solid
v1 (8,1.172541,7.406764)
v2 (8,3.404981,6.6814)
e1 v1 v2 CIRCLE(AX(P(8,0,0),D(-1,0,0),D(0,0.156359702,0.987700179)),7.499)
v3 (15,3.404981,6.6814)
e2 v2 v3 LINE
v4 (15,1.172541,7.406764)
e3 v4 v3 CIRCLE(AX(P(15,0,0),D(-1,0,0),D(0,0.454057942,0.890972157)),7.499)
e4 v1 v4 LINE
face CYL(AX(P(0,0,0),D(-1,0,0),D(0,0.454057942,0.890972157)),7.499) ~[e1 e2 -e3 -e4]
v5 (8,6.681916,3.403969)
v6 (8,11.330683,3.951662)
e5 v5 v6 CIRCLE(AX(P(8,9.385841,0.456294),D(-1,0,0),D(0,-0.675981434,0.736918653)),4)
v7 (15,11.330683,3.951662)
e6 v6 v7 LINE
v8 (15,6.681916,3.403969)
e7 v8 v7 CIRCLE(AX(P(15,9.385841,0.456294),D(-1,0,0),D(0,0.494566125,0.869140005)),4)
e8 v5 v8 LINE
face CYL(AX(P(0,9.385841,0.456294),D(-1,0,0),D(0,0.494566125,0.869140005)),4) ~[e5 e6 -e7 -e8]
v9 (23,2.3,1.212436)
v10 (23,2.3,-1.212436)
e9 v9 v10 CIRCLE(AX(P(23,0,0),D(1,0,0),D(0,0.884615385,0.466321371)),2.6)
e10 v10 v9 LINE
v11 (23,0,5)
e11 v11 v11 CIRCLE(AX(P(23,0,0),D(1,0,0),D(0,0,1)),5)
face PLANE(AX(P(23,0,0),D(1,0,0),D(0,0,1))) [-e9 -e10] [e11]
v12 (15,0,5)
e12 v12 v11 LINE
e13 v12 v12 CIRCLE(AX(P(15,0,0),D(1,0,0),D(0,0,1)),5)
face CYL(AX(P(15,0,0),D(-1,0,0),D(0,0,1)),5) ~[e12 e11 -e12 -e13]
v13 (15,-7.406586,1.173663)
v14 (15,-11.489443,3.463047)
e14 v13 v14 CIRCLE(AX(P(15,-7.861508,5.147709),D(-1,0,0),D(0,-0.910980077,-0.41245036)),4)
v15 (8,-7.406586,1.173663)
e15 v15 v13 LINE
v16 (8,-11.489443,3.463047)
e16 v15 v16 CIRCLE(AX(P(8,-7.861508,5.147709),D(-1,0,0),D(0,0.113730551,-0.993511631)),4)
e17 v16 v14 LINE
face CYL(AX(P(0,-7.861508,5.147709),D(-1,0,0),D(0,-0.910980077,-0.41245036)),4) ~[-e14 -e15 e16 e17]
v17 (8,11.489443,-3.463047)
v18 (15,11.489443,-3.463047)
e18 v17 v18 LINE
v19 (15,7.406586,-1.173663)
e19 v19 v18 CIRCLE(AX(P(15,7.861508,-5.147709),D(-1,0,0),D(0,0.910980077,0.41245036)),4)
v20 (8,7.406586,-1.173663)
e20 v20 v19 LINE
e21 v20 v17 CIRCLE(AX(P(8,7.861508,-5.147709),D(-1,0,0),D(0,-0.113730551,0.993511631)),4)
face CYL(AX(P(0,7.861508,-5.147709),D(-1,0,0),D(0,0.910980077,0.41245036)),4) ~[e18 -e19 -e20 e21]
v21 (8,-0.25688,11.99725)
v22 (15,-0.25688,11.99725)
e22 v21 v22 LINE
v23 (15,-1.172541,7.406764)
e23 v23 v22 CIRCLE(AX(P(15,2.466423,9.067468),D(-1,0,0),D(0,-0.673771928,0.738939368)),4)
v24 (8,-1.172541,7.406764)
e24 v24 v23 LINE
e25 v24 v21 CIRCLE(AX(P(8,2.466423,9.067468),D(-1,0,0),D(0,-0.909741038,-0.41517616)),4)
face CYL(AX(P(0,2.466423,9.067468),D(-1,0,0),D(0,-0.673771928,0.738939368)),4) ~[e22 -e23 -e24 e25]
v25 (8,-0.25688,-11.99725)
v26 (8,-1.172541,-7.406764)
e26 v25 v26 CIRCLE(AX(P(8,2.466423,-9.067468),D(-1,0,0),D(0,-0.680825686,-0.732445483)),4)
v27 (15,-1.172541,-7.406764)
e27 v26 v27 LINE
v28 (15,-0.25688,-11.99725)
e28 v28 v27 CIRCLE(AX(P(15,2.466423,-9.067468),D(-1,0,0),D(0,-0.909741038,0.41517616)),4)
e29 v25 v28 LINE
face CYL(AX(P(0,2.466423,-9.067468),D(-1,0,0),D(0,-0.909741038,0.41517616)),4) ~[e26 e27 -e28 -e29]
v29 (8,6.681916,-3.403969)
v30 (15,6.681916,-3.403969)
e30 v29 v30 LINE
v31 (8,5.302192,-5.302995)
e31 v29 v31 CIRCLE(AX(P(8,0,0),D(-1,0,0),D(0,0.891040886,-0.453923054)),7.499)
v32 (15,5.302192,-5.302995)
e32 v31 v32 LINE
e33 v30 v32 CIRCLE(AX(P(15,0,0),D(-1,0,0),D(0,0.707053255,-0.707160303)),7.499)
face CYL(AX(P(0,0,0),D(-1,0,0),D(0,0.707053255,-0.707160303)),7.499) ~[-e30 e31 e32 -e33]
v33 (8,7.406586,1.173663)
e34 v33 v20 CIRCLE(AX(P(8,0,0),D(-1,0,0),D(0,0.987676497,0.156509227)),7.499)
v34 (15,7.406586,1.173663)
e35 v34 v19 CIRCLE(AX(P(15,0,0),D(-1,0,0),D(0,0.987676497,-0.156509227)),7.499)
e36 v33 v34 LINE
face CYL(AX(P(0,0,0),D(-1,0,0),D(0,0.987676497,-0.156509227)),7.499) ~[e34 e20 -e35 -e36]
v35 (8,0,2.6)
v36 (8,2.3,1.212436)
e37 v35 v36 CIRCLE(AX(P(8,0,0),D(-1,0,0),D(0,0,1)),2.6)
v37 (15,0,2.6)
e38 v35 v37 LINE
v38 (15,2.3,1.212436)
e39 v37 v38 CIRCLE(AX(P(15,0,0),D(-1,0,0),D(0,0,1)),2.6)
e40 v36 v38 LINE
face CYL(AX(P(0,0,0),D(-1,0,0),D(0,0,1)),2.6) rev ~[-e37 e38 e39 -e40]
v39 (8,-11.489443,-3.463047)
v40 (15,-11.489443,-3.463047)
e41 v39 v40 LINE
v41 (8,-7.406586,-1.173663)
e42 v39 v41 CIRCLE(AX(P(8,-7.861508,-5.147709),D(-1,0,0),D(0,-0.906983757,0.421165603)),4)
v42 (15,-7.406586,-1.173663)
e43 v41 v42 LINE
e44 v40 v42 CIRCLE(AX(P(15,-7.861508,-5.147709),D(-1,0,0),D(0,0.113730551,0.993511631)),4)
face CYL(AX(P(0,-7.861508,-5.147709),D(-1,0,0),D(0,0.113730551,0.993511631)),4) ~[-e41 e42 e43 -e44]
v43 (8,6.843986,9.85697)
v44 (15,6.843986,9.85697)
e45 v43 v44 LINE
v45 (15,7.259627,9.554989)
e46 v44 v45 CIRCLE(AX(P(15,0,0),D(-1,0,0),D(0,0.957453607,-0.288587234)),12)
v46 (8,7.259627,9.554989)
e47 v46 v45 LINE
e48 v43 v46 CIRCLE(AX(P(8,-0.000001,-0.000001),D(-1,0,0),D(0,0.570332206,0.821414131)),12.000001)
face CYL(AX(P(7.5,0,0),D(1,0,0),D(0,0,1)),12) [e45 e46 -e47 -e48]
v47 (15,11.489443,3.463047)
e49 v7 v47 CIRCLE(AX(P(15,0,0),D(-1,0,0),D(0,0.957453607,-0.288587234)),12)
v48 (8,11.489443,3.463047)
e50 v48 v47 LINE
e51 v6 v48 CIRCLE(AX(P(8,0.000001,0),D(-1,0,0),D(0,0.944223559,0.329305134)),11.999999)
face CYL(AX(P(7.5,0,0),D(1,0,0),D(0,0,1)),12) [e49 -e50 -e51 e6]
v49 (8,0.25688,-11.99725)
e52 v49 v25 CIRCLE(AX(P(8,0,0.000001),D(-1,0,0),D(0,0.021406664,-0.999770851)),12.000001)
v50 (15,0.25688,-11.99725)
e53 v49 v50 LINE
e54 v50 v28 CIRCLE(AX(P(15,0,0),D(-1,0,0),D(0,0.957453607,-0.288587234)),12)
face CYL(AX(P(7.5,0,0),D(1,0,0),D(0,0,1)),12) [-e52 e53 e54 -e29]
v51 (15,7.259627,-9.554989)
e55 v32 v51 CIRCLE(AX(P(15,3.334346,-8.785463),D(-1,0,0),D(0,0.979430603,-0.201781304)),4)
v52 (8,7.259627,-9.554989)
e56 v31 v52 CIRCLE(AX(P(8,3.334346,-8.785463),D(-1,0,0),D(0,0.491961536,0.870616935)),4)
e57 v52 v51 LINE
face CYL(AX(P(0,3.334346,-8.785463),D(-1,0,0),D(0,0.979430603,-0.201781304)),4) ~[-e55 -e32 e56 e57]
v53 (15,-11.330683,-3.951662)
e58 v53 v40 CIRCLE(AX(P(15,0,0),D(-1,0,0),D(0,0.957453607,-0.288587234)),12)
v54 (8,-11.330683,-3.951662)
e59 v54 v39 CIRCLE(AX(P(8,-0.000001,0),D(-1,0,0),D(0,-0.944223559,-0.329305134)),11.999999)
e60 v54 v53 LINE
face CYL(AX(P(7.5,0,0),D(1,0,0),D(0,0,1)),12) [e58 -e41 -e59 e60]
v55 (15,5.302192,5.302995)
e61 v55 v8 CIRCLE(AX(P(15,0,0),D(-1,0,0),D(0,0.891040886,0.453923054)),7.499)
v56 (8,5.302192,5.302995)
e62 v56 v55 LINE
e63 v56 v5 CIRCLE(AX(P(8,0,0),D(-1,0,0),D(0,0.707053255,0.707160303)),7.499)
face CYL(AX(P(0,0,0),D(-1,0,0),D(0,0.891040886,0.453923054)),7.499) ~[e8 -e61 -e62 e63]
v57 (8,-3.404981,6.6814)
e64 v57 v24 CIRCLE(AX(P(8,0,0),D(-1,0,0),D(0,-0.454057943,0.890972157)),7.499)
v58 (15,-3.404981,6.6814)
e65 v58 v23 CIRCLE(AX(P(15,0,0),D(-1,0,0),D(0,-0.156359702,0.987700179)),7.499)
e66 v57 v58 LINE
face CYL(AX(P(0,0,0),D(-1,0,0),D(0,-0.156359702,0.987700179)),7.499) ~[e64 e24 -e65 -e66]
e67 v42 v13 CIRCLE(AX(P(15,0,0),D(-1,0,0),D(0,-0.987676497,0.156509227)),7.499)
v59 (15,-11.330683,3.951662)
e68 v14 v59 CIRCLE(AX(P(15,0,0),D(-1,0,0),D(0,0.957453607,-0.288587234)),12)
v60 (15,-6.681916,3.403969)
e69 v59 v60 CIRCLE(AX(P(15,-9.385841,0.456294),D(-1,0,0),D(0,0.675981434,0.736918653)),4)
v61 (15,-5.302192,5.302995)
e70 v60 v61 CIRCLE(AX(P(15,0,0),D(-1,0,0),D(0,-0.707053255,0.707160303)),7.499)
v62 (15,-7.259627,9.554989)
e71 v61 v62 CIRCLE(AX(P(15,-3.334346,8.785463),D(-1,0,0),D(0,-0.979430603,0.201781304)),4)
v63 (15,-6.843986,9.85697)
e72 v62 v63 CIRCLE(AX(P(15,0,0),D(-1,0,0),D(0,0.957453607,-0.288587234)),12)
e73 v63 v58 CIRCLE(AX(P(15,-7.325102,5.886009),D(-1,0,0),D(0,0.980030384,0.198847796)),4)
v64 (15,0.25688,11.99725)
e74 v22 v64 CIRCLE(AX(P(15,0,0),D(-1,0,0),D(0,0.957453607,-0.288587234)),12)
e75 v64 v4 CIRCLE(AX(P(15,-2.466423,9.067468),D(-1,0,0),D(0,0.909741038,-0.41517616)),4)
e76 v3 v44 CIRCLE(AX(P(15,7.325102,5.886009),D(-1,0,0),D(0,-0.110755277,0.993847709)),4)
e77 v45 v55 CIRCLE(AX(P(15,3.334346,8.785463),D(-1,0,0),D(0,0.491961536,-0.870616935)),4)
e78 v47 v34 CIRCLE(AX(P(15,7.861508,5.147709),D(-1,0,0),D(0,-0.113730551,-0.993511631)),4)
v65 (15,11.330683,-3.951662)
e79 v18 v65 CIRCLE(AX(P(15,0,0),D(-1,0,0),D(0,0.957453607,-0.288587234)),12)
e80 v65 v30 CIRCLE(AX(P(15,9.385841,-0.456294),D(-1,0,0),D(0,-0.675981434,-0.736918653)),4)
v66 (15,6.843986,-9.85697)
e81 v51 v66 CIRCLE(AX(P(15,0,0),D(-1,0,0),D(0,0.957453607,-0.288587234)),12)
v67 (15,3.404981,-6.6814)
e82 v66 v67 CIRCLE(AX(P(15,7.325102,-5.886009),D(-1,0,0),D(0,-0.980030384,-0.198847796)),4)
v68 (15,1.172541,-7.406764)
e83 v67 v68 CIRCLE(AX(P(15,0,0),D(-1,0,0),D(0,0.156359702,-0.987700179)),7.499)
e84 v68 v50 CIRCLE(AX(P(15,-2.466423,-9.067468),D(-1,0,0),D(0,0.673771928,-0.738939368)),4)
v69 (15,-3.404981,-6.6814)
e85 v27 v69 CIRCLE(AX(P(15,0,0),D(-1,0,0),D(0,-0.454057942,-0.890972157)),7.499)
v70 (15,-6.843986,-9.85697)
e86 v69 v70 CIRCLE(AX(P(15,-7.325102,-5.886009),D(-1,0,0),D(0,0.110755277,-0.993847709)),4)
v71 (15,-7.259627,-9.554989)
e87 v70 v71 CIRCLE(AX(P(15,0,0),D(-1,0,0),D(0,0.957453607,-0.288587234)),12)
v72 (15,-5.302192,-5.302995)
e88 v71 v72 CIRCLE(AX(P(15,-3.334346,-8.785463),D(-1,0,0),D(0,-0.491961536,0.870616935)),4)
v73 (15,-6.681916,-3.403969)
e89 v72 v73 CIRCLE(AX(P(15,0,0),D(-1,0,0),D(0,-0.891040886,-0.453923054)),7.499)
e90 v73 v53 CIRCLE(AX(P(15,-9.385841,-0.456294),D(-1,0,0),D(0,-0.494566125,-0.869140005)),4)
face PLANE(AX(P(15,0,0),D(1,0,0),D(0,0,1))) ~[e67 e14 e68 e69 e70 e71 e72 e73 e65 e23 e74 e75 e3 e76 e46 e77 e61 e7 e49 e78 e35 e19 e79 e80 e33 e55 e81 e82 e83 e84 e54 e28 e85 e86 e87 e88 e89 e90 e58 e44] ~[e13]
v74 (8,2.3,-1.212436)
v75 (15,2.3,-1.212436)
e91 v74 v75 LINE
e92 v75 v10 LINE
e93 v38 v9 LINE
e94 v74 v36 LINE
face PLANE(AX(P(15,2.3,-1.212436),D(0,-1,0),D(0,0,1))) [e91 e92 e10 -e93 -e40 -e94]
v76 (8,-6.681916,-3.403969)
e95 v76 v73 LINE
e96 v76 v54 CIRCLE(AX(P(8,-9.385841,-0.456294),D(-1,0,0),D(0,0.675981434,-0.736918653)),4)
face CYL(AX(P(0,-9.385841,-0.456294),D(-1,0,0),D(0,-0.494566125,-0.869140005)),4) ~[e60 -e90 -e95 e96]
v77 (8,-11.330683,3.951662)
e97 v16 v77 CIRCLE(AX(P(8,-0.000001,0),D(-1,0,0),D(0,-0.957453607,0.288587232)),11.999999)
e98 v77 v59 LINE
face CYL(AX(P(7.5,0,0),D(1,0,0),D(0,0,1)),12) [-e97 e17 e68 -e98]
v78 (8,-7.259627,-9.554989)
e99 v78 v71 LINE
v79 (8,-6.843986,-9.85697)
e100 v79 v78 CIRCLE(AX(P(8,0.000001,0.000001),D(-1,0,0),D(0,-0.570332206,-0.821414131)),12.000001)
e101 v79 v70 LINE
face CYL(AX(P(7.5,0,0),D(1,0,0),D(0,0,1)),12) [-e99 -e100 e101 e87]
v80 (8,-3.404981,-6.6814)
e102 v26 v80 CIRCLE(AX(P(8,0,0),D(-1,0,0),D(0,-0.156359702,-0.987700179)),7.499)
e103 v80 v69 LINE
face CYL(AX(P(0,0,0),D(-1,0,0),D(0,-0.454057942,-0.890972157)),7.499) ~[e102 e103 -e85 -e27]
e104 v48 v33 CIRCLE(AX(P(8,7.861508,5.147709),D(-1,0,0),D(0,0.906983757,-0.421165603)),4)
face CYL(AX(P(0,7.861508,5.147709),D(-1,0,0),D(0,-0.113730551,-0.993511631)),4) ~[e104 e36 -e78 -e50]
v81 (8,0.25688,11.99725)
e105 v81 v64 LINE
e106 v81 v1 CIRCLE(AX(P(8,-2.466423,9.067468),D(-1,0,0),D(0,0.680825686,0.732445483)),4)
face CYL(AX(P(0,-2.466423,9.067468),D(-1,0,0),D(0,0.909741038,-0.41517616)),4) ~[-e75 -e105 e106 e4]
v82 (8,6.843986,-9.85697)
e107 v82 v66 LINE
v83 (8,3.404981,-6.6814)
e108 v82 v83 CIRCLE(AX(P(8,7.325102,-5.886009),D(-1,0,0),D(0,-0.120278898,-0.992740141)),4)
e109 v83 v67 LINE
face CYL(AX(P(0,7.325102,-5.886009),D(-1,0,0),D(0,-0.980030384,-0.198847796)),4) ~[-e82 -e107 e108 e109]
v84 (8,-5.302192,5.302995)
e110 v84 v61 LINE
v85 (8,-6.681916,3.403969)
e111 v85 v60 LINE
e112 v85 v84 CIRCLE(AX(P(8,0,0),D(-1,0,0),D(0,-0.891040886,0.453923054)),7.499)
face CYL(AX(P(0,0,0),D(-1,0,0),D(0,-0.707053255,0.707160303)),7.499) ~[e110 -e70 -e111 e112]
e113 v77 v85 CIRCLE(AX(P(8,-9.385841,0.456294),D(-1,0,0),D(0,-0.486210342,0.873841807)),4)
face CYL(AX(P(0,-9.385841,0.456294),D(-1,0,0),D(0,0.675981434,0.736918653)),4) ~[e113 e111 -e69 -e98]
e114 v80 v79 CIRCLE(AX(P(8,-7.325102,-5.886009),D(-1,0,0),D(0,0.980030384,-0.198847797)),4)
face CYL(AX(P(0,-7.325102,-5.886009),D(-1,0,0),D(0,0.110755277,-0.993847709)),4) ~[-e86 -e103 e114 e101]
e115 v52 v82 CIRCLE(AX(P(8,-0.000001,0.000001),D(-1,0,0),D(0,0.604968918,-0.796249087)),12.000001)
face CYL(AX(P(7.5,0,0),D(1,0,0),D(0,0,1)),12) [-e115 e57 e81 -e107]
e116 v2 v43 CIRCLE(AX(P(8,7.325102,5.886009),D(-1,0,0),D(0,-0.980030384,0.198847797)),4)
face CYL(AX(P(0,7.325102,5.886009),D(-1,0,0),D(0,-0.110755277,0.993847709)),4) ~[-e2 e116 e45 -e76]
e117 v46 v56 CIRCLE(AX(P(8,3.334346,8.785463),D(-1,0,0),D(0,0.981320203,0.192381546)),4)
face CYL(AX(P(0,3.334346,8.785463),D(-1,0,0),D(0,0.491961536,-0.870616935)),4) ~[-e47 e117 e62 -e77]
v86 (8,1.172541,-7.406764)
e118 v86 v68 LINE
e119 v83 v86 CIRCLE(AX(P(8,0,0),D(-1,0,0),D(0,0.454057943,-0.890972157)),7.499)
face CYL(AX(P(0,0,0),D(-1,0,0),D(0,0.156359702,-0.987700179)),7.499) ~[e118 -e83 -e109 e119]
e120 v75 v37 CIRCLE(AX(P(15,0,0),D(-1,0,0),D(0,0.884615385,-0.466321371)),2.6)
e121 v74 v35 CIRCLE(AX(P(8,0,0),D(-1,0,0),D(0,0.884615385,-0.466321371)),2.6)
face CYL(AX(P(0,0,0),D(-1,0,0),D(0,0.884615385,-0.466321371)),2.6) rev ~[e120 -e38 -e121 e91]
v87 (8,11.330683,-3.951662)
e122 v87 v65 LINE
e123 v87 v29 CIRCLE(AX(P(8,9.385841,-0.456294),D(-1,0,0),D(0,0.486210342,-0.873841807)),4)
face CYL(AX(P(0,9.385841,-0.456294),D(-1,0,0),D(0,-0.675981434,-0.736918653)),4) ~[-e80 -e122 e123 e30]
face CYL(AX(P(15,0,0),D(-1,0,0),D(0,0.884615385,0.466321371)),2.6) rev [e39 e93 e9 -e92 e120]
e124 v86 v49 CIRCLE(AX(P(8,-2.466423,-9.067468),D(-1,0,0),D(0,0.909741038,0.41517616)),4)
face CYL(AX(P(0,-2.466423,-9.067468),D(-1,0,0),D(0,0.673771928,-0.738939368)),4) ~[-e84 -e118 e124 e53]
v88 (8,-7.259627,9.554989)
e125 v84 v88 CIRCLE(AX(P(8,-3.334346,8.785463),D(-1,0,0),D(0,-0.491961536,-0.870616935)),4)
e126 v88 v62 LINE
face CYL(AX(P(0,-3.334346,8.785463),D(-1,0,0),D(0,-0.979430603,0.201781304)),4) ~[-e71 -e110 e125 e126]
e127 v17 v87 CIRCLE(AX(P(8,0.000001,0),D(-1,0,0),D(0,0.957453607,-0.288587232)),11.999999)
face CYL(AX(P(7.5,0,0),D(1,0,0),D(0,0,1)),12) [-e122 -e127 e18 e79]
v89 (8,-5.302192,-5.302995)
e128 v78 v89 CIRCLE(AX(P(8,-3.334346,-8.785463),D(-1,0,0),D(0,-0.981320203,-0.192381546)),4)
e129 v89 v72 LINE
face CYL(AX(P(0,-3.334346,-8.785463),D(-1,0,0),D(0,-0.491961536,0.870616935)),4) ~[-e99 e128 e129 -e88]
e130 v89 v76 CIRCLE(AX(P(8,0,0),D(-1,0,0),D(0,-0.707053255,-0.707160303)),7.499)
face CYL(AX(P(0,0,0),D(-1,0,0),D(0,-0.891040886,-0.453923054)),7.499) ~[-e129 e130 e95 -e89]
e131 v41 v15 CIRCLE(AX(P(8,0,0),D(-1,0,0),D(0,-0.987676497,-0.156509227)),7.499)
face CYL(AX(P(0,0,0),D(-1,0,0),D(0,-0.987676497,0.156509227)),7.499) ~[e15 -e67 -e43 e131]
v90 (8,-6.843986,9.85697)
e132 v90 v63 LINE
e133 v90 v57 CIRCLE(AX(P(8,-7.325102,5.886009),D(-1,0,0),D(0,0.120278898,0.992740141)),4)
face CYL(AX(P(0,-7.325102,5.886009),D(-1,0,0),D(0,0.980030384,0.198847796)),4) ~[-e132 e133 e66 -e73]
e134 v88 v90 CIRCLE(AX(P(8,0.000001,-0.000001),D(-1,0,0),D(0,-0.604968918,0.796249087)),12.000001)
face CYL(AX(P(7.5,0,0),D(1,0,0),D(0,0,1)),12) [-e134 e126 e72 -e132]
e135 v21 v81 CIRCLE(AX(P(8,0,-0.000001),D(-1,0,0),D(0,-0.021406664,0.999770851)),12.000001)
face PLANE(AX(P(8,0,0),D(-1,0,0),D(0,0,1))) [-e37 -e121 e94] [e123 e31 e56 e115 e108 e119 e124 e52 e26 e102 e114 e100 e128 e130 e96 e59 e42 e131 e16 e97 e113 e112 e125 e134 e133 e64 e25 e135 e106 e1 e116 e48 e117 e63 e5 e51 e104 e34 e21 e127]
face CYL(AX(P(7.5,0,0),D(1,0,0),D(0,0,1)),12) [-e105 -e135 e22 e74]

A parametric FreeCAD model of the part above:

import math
import FreeCAD as App
import Part
import Sketcher
from FreeCAD import Vector
Q = App.Units.Quantity


def add_polygon(sketch, points):
    """Adds a closed chain of lines whose ends are joined by coincident constraints."""
    first, n = sketch.GeometryCount, len(points)
    for a, b in zip(points, points[1:] + points[:1]):
        sketch.addGeometry(Part.LineSegment(App.Vector(*a, 0), App.Vector(*b, 0)), False)
    for i in range(n):
        sketch.addConstraint(Sketcher.Constraint("Coincident", first + i, 2, first + (i + 1) % n, 1))

doc = App.newDocument("Part")
body = doc.addObject("PartDesign::Body", "Body")

sketch1 = body.newObject("Sketcher::SketchObject", "Sketch")
sketch1.AttachmentSupport = (doc.getObject("XZ_Plane"), [""])
sketch1.MapMode = "FlatFace"
add_polygon(sketch1, [(0, -12), (0, 0), (15, 0), (15, -12)])
sketch1.addConstraint(Sketcher.Constraint("Vertical", 0))
sketch1.addConstraint(Sketcher.Constraint("Horizontal", 1))
sketch1.addConstraint(Sketcher.Constraint("Vertical", 2))
sketch1.addConstraint(Sketcher.Constraint("Horizontal", 3))
sketch1.addConstraint(Sketcher.Constraint("Coincident", 0, 2, -1, 1))
sketch1.addConstraint(Sketcher.Constraint("DistanceX", 1, 1, 1, 2, Q("15 mm")))
sketch1.addConstraint(Sketcher.Constraint("DistanceY", 0, 1, 0, 2, Q("12 mm")))
revolution = body.newObject("PartDesign::Revolution", "Revolution")
revolution.Profile = sketch1
revolution.ReferenceAxis = (sketch1, ["H_Axis"])
revolution.Angle = 360

sketch2 = body.newObject("Sketcher::SketchObject", "Sketch001")
sketch2.AttachmentSupport = (doc.getObject("YZ_Plane"), [""])
sketch2.MapMode = "FlatFace"
sketch2.addGeometry(Part.ArcOfCircle(Part.Circle(Vector(0, 0, 0), Vector(0, 0, 1), 7.5), math.radians(-9), math.radians(9)), False)
sketch2.addGeometry(Part.ArcOfCircle(Part.Circle(Vector(7.9, -5.1, 0), Vector(0, 0, 1), 4), math.radians(24), math.radians(97)), False)
sketch2.addGeometry(Part.ArcOfCircle(Part.Circle(Vector(0, 0, 0), Vector(0, 0, 1), 12), math.radians(-17), math.radians(17)), False)
sketch2.addGeometry(Part.ArcOfCircle(Part.Circle(Vector(7.9, 5.1, 0), Vector(0, 0, 1), 4), math.radians(-97), math.radians(-24)), False)
sketch2.addConstraint(Sketcher.Constraint("Coincident", 0, 1, 1, 2))
sketch2.addConstraint(Sketcher.Constraint("Coincident", 1, 1, 2, 1))
sketch2.addConstraint(Sketcher.Constraint("Coincident", 2, 2, 3, 2))
sketch2.addConstraint(Sketcher.Constraint("Coincident", 3, 1, 0, 2))
sketch2.addConstraint(Sketcher.Constraint("Coincident", 0, 3, -1, 1))
sketch2.addConstraint(Sketcher.Constraint("Coincident", 2, 3, -1, 1))
sketch2.addConstraint(Sketcher.Constraint("Equal", 1, 3))
sketch2.addConstraint(Sketcher.Constraint("Symmetric", 1, 3, 3, 3, -1))
sketch2.addConstraint(Sketcher.Constraint("Radius", 1, Q("4 mm")))
sketch2.addConstraint(Sketcher.Constraint("Radius", 0, Q("7.499 mm")))
sketch2.addConstraint(Sketcher.Constraint("Radius", 2, Q("12.0254 mm")))
sketch2.addConstraint(Sketcher.Constraint("DistanceY", 1, 3, 1, 1, Q("1.649801 mm")))
sketch2.addConstraint(Sketcher.Constraint("DistanceX", -1, 1, 1, 3, Q("7.861508 mm")))
pocket1 = body.newObject("PartDesign::Pocket", "Pocket")
pocket1.Profile = sketch2
pocket1.Type = "ThroughAll"
pocket1.Reversed = True
doc.recompute()

polarpattern = body.newObject("PartDesign::PolarPattern", "PolarPattern")
polarpattern.Originals = [pocket1]
polarpattern.Axis = (doc.getObject("X_Axis"), [""])
polarpattern.Angle = 360
polarpattern.Occurrences = 10
body.Tip = polarpattern

sketch3 = body.newObject("Sketcher::SketchObject", "Sketch002")
sketch3.AttachmentSupport = (doc.getObject("YZ_Plane"), [""])
sketch3.MapMode = "FlatFace"
sketch3.addGeometry(Part.Circle(Vector(0, 0, 0), Vector(0, 0, 1), 0.45), False)
sketch3.addConstraint(Sketcher.Constraint("Coincident", 0, 3, -1, 1))
sketch3.addConstraint(Sketcher.Constraint("Diameter", 0, Q("0.9 mm")))
pocket2 = body.newObject("PartDesign::Pocket", "Pocket001")
pocket2.Profile = sketch3
pocket2.Length = 100.000102
pocket2.Midplane = True

sketch4 = body.newObject("Sketcher::SketchObject", "Sketch003")
sketch4.AttachmentSupport = (doc.getObject("YZ_Plane"), [""])
sketch4.MapMode = "FlatFace"
sketch4.addGeometry(Part.LineSegment(Vector(2.3, 1.21, 0), Vector(2.3, -1.21, 0)), False)
sketch4.addGeometry(Part.ArcOfCircle(Part.Circle(Vector(0, 0, 0), Vector(0, 0, 1), 2.6), math.radians(90), math.radians(332)), False)
sketch4.addGeometry(Part.ArcOfCircle(Part.Circle(Vector(0, 0, 0), Vector(0, 0, 1), 2.6), math.radians(28), math.radians(90)), False)
sketch4.addGeometry(Part.Circle(Vector(0, 0, 0), Vector(0, 0, 1), 0.45), False)
sketch4.addConstraint(Sketcher.Constraint("Coincident", 0, 2, 1, 2))
sketch4.addConstraint(Sketcher.Constraint("Tangent", 1, 1, 2, 2))
sketch4.addConstraint(Sketcher.Constraint("Coincident", 2, 1, 0, 1))
sketch4.addConstraint(Sketcher.Constraint("Vertical", 0))
sketch4.addConstraint(Sketcher.Constraint("Coincident", 1, 3, -1, 1))
sketch4.addConstraint(Sketcher.Constraint("Coincident", 3, 3, -1, 1))
sketch4.addConstraint(Sketcher.Constraint("Equal", 1, 2))
sketch4.addConstraint(Sketcher.Constraint("PointOnObject", 1, 1, -2))
sketch4.addConstraint(Sketcher.Constraint("Diameter", 3, Q("0.9 mm")))
sketch4.addConstraint(Sketcher.Constraint("Radius", 1, Q("2.6 mm")))
sketch4.addConstraint(Sketcher.Constraint("DistanceX", -1, 1, 0, 2, Q("2.3 mm")))
pocket3 = body.newObject("PartDesign::Pocket", "Pocket002")
pocket3.Profile = sketch4
pocket3.Length = 15
pocket3.Reversed = True

sketch5 = body.newObject("Sketcher::SketchObject", "Sketch004")
sketch5.AttachmentSupport = (doc.getObject("YZ_Plane"), [""])
sketch5.MapMode = "FlatFace"
sketch5.addGeometry(Part.ArcOfCircle(Part.Circle(Vector(-2.5, -9.1, 0), Vector(0, 0, 1), 4), math.radians(-47), math.radians(25)), False)
sketch5.addGeometry(Part.ArcOfCircle(Part.Circle(Vector(0, 0, 0), Vector(0, 0, 1), 12), math.radians(-91.23), math.radians(-88.77)), False)
sketch5.addGeometry(Part.ArcOfCircle(Part.Circle(Vector(2.5, -9.1, 0), Vector(0, 0, 1), 4), math.radians(155), math.radians(227)), False)
sketch5.addGeometry(Part.ArcOfCircle(Part.Circle(Vector(0, 0, 0), Vector(0, 0, 1), 7.5), math.radians(-117), math.radians(-99)), False)
sketch5.addGeometry(Part.ArcOfCircle(Part.Circle(Vector(-7.3, -5.9, 0), Vector(0, 0, 1), 4), math.radians(-83), math.radians(-11)), False)
sketch5.addGeometry(Part.ArcOfCircle(Part.Circle(Vector(0, 0, 0), Vector(0, 0, 1), 12), math.radians(-127.23), math.radians(-124.77)), False)
sketch5.addGeometry(Part.ArcOfCircle(Part.Circle(Vector(-3.3, -8.8, 0), Vector(0, 0, 1), 4), math.radians(119), math.radians(191)), False)
sketch5.addGeometry(Part.ArcOfCircle(Part.Circle(Vector(0, 0, 0), Vector(0, 0, 1), 7.5), math.radians(-153), math.radians(-135)), False)
sketch5.addGeometry(Part.ArcOfCircle(Part.Circle(Vector(-9.4, -0.5, 0), Vector(0, 0, 1), 4), math.radians(-119), math.radians(-47)), False)
sketch5.addGeometry(Part.ArcOfCircle(Part.Circle(Vector(0, 0, 0), Vector(0, 0, 1), 12), math.radians(-163.23), math.radians(-160.77)), False)
sketch5.addGeometry(Part.ArcOfCircle(Part.Circle(Vector(-7.9, -5.1, 0), Vector(0, 0, 1), 4), math.radians(83), math.radians(155)), False)
sketch5.addGeometry(Part.ArcOfCircle(Part.Circle(Vector(0, 0, 0), Vector(0, 0, 1), 7.5), math.radians(171), math.radians(189)), False)
sketch5.addGeometry(Part.ArcOfCircle(Part.Circle(Vector(-7.9, 5.1, 0), Vector(0, 0, 1), 4), math.radians(-155), math.radians(-83)), False)
sketch5.addGeometry(Part.ArcOfCircle(Part.Circle(Vector(0, 0, 0), Vector(0, 0, 1), 12), math.radians(160.77), math.radians(163.23)), False)
sketch5.addGeometry(Part.ArcOfCircle(Part.Circle(Vector(-9.4, 0.5, 0), Vector(0, 0, 1), 4), math.radians(47), math.radians(119)), False)
sketch5.addGeometry(Part.ArcOfCircle(Part.Circle(Vector(0, 0, 0), Vector(0, 0, 1), 7.5), math.radians(135), math.radians(153)), False)
sketch5.addGeometry(Part.ArcOfCircle(Part.Circle(Vector(-3.3, 8.8, 0), Vector(0, 0, 1), 4), math.radians(169), math.radians(241)), False)
sketch5.addGeometry(Part.ArcOfCircle(Part.Circle(Vector(0, 0, 0), Vector(0, 0, 1), 12), math.radians(124.77), math.radians(127.23)), False)
sketch5.addGeometry(Part.ArcOfCircle(Part.Circle(Vector(-7.3, 5.9, 0), Vector(0, 0, 1), 4), math.radians(11), math.radians(83)), False)
sketch5.addGeometry(Part.ArcOfCircle(Part.Circle(Vector(0, 0, 0), Vector(0, 0, 1), 7.5), math.radians(99), math.radians(117)), False)
sketch5.addGeometry(Part.ArcOfCircle(Part.Circle(Vector(2.5, 9.1, 0), Vector(0, 0, 1), 4), math.radians(133), math.radians(205)), False)
sketch5.addGeometry(Part.ArcOfCircle(Part.Circle(Vector(0, 0, 0), Vector(0, 0, 1), 12), math.radians(88.77), math.radians(91.23)), False)
sketch5.addGeometry(Part.ArcOfCircle(Part.Circle(Vector(-2.5, 9.1, 0), Vector(0, 0, 1), 4), math.radians(-25), math.radians(47)), False)
sketch5.addGeometry(Part.ArcOfCircle(Part.Circle(Vector(0, 0, 0), Vector(0, 0, 1), 7.5), math.radians(63), math.radians(81)), False)
sketch5.addGeometry(Part.ArcOfCircle(Part.Circle(Vector(7.3, 5.9, 0), Vector(0, 0, 1), 4), math.radians(97), math.radians(169)), False)
sketch5.addGeometry(Part.ArcOfCircle(Part.Circle(Vector(0, 0, 0), Vector(0, 0, 1), 12), math.radians(52.77), math.radians(55.23)), False)
sketch5.addGeometry(Part.ArcOfCircle(Part.Circle(Vector(3.3, 8.8, 0), Vector(0, 0, 1), 4), math.radians(-61), math.radians(11)), False)
sketch5.addGeometry(Part.ArcOfCircle(Part.Circle(Vector(0, 0, 0), Vector(0, 0, 1), 7.5), math.radians(27), math.radians(45)), False)
sketch5.addGeometry(Part.ArcOfCircle(Part.Circle(Vector(9.4, 0.5, 0), Vector(0, 0, 1), 4), math.radians(61), math.radians(133)), False)
sketch5.addGeometry(Part.ArcOfCircle(Part.Circle(Vector(0, 0, 0), Vector(0, 0, 1), 12), math.radians(16.77), math.radians(19.23)), False)
sketch5.addGeometry(Part.ArcOfCircle(Part.Circle(Vector(7.9, 5.1, 0), Vector(0, 0, 1), 4), math.radians(-97), math.radians(-25)), False)
sketch5.addGeometry(Part.ArcOfCircle(Part.Circle(Vector(0, 0, 0), Vector(0, 0, 1), 7.5), math.radians(-9), math.radians(9)), False)
sketch5.addGeometry(Part.ArcOfCircle(Part.Circle(Vector(7.9, -5.1, 0), Vector(0, 0, 1), 4), math.radians(25), math.radians(97)), False)
sketch5.addGeometry(Part.ArcOfCircle(Part.Circle(Vector(0, 0, 0), Vector(0, 0, 1), 12), math.radians(-19.23), math.radians(-16.77)), False)
sketch5.addGeometry(Part.ArcOfCircle(Part.Circle(Vector(9.4, -0.5, 0), Vector(0, 0, 1), 4), math.radians(-133), math.radians(-61)), False)
sketch5.addGeometry(Part.ArcOfCircle(Part.Circle(Vector(0, 0, 0), Vector(0, 0, 1), 7.5), math.radians(-45), math.radians(-27)), False)
sketch5.addGeometry(Part.ArcOfCircle(Part.Circle(Vector(3.3, -8.8, 0), Vector(0, 0, 1), 4), math.radians(-11), math.radians(61)), False)
sketch5.addGeometry(Part.ArcOfCircle(Part.Circle(Vector(0, 0, 0), Vector(0, 0, 1), 12), math.radians(-55.23), math.radians(-52.77)), False)
sketch5.addGeometry(Part.ArcOfCircle(Part.Circle(Vector(7.3, -5.9, 0), Vector(0, 0, 1), 4), math.radians(-169), math.radians(-97)), False)
sketch5.addGeometry(Part.ArcOfCircle(Part.Circle(Vector(0, 0, 0), Vector(0, 0, 1), 7.5), math.radians(-81), math.radians(-63)), False)
sketch5.addConstraint(Sketcher.Constraint("Coincident", 0, 1, 1, 2))
sketch5.addConstraint(Sketcher.Constraint("Coincident", 1, 1, 2, 2))
sketch5.addConstraint(Sketcher.Constraint("Coincident", 2, 1, 3, 2))
sketch5.addConstraint(Sketcher.Constraint("Coincident", 3, 1, 4, 2))
sketch5.addConstraint(Sketcher.Constraint("Coincident", 4, 1, 5, 2))
sketch5.addConstraint(Sketcher.Constraint("Coincident", 5, 1, 6, 2))
sketch5.addConstraint(Sketcher.Constraint("Coincident", 6, 1, 7, 2))
sketch5.addConstraint(Sketcher.Constraint("Coincident", 7, 1, 8, 2))
sketch5.addConstraint(Sketcher.Constraint("Coincident", 8, 1, 9, 2))
sketch5.addConstraint(Sketcher.Constraint("Coincident", 9, 1, 10, 2))
sketch5.addConstraint(Sketcher.Constraint("Coincident", 10, 1, 11, 2))
sketch5.addConstraint(Sketcher.Constraint("Coincident", 11, 1, 12, 2))
sketch5.addConstraint(Sketcher.Constraint("Coincident", 12, 1, 13, 2))
sketch5.addConstraint(Sketcher.Constraint("Coincident", 13, 1, 14, 2))
sketch5.addConstraint(Sketcher.Constraint("Coincident", 14, 1, 15, 2))
sketch5.addConstraint(Sketcher.Constraint("Coincident", 15, 1, 16, 2))
sketch5.addConstraint(Sketcher.Constraint("Coincident", 16, 1, 17, 2))
sketch5.addConstraint(Sketcher.Constraint("Coincident", 17, 1, 18, 2))
sketch5.addConstraint(Sketcher.Constraint("Coincident", 18, 1, 19, 2))
sketch5.addConstraint(Sketcher.Constraint("Coincident", 19, 1, 20, 2))
sketch5.addConstraint(Sketcher.Constraint("Coincident", 20, 1, 21, 2))
sketch5.addConstraint(Sketcher.Constraint("Coincident", 21, 1, 22, 2))
sketch5.addConstraint(Sketcher.Constraint("Coincident", 22, 1, 23, 2))
sketch5.addConstraint(Sketcher.Constraint("Coincident", 23, 1, 24, 2))
sketch5.addConstraint(Sketcher.Constraint("Coincident", 24, 1, 25, 2))
sketch5.addConstraint(Sketcher.Constraint("Coincident", 25, 1, 26, 2))
sketch5.addConstraint(Sketcher.Constraint("Coincident", 26, 1, 27, 2))
sketch5.addConstraint(Sketcher.Constraint("Coincident", 27, 1, 28, 2))
sketch5.addConstraint(Sketcher.Constraint("Coincident", 28, 1, 29, 2))
sketch5.addConstraint(Sketcher.Constraint("Coincident", 29, 1, 30, 2))
sketch5.addConstraint(Sketcher.Constraint("Coincident", 30, 1, 31, 2))
sketch5.addConstraint(Sketcher.Constraint("Coincident", 31, 1, 32, 2))
sketch5.addConstraint(Sketcher.Constraint("Coincident", 32, 1, 33, 2))
sketch5.addConstraint(Sketcher.Constraint("Coincident", 33, 1, 34, 2))
sketch5.addConstraint(Sketcher.Constraint("Coincident", 34, 1, 35, 2))
sketch5.addConstraint(Sketcher.Constraint("Coincident", 35, 1, 36, 2))
sketch5.addConstraint(Sketcher.Constraint("Coincident", 36, 1, 37, 2))
sketch5.addConstraint(Sketcher.Constraint("Coincident", 37, 1, 38, 2))
sketch5.addConstraint(Sketcher.Constraint("Coincident", 38, 1, 39, 2))
sketch5.addConstraint(Sketcher.Constraint("Coincident", 39, 1, 0, 2))
sketch5.addConstraint(Sketcher.Constraint("Coincident", 1, 3, -1, 1))
sketch5.addConstraint(Sketcher.Constraint("Coincident", 3, 3, -1, 1))
sketch5.addConstraint(Sketcher.Constraint("Coincident", 5, 3, -1, 1))
sketch5.addConstraint(Sketcher.Constraint("Coincident", 7, 3, -1, 1))
sketch5.addConstraint(Sketcher.Constraint("Coincident", 9, 3, -1, 1))
sketch5.addConstraint(Sketcher.Constraint("Coincident", 11, 3, -1, 1))
sketch5.addConstraint(Sketcher.Constraint("Coincident", 13, 3, -1, 1))
sketch5.addConstraint(Sketcher.Constraint("Coincident", 15, 3, -1, 1))
sketch5.addConstraint(Sketcher.Constraint("Coincident", 17, 3, -1, 1))
sketch5.addConstraint(Sketcher.Constraint("Coincident", 19, 3, -1, 1))
sketch5.addConstraint(Sketcher.Constraint("Coincident", 21, 3, -1, 1))
sketch5.addConstraint(Sketcher.Constraint("Coincident", 23, 3, -1, 1))
sketch5.addConstraint(Sketcher.Constraint("Coincident", 25, 3, -1, 1))
sketch5.addConstraint(Sketcher.Constraint("Coincident", 27, 3, -1, 1))
sketch5.addConstraint(Sketcher.Constraint("Coincident", 29, 3, -1, 1))
sketch5.addConstraint(Sketcher.Constraint("Coincident", 31, 3, -1, 1))
sketch5.addConstraint(Sketcher.Constraint("Coincident", 33, 3, -1, 1))
sketch5.addConstraint(Sketcher.Constraint("Coincident", 35, 3, -1, 1))
sketch5.addConstraint(Sketcher.Constraint("Coincident", 37, 3, -1, 1))
sketch5.addConstraint(Sketcher.Constraint("Coincident", 39, 3, -1, 1))
sketch5.addConstraint(Sketcher.Constraint("Equal", 0, 2))
sketch5.addConstraint(Sketcher.Constraint("Equal", 2, 4))
sketch5.addConstraint(Sketcher.Constraint("Equal", 1, 5))
sketch5.addConstraint(Sketcher.Constraint("Equal", 4, 6))
sketch5.addConstraint(Sketcher.Constraint("Equal", 3, 7))
sketch5.addConstraint(Sketcher.Constraint("Equal", 6, 8))
sketch5.addConstraint(Sketcher.Constraint("Equal", 5, 9))
sketch5.addConstraint(Sketcher.Constraint("Equal", 8, 10))
sketch5.addConstraint(Sketcher.Constraint("Equal", 7, 11))
sketch5.addConstraint(Sketcher.Constraint("Equal", 10, 12))
sketch5.addConstraint(Sketcher.Constraint("Equal", 9, 13))
sketch5.addConstraint(Sketcher.Constraint("Equal", 12, 14))
sketch5.addConstraint(Sketcher.Constraint("Equal", 11, 15))
sketch5.addConstraint(Sketcher.Constraint("Equal", 14, 16))
sketch5.addConstraint(Sketcher.Constraint("Equal", 13, 17))
sketch5.addConstraint(Sketcher.Constraint("Equal", 16, 18))
sketch5.addConstraint(Sketcher.Constraint("Equal", 15, 19))
sketch5.addConstraint(Sketcher.Constraint("Equal", 18, 20))
sketch5.addConstraint(Sketcher.Constraint("Equal", 17, 21))
sketch5.addConstraint(Sketcher.Constraint("Equal", 20, 22))
sketch5.addConstraint(Sketcher.Constraint("Equal", 19, 23))
sketch5.addConstraint(Sketcher.Constraint("Equal", 22, 24))
sketch5.addConstraint(Sketcher.Constraint("Equal", 21, 25))
sketch5.addConstraint(Sketcher.Constraint("Equal", 24, 26))
sketch5.addConstraint(Sketcher.Constraint("Equal", 23, 27))
sketch5.addConstraint(Sketcher.Constraint("Equal", 26, 28))
sketch5.addConstraint(Sketcher.Constraint("Equal", 25, 29))
sketch5.addConstraint(Sketcher.Constraint("Equal", 28, 30))
sketch5.addConstraint(Sketcher.Constraint("Equal", 27, 31))
sketch5.addConstraint(Sketcher.Constraint("Equal", 30, 32))
sketch5.addConstraint(Sketcher.Constraint("Equal", 29, 33))
sketch5.addConstraint(Sketcher.Constraint("Equal", 32, 34))
sketch5.addConstraint(Sketcher.Constraint("Equal", 31, 35))
sketch5.addConstraint(Sketcher.Constraint("Equal", 34, 36))
sketch5.addConstraint(Sketcher.Constraint("Equal", 33, 37))
sketch5.addConstraint(Sketcher.Constraint("Equal", 36, 38))
sketch5.addConstraint(Sketcher.Constraint("Equal", 35, 39))
sketch5.addConstraint(Sketcher.Constraint("Symmetric", 0, 3, 20, 3, -1, 1))
sketch5.addConstraint(Sketcher.Constraint("Symmetric", 2, 3, 22, 3, -1, 1))
sketch5.addConstraint(Sketcher.Constraint("Symmetric", 4, 3, 24, 3, -1, 1))
sketch5.addConstraint(Sketcher.Constraint("Symmetric", 6, 3, 26, 3, -1, 1))
sketch5.addConstraint(Sketcher.Constraint("Symmetric", 8, 3, 28, 3, -1, 1))
sketch5.addConstraint(Sketcher.Constraint("Symmetric", 10, 3, 30, 3, -1, 1))
sketch5.addConstraint(Sketcher.Constraint("Symmetric", 12, 3, 32, 3, -1, 1))
sketch5.addConstraint(Sketcher.Constraint("Symmetric", 14, 3, 34, 3, -1, 1))
sketch5.addConstraint(Sketcher.Constraint("Symmetric", 16, 3, 36, 3, -1, 1))
sketch5.addConstraint(Sketcher.Constraint("Symmetric", 18, 3, 38, 3, -1, 1))
sketch5.addConstraint(Sketcher.Constraint("Symmetric", 0, 3, 2, 3, -2))
sketch5.addConstraint(Sketcher.Constraint("Symmetric", 18, 3, 24, 3, -2))
sketch5.addConstraint(Sketcher.Constraint("Symmetric", 16, 3, 26, 3, -2))
sketch5.addConstraint(Sketcher.Constraint("Symmetric", 14, 3, 28, 3, -2))
sketch5.addConstraint(Sketcher.Constraint("Symmetric", 12, 3, 30, 3, -2))
sketch5.addConstraint(Sketcher.Constraint("Radius", 0, Q("4 mm")))
sketch5.addConstraint(Sketcher.Constraint("Radius", 1, Q("12.000001 mm")))
sketch5.addConstraint(Sketcher.Constraint("Radius", 3, Q("7.499 mm")))
sketch5.addConstraint(Sketcher.Constraint("DistanceY", 3, 1, -1, 1, Q("6.6814 mm")))
sketch5.addConstraint(Sketcher.Constraint("DistanceY", 0, 3, -1, 1, Q("9.067468 mm")))
sketch5.addConstraint(Sketcher.Constraint("DistanceY", 4, 3, -1, 1, Q("5.886009 mm")))
sketch5.addConstraint(Sketcher.Constraint("DistanceX", 8, 3, -1, 1, Q("9.385841 mm")))
sketch5.addConstraint(Sketcher.Constraint("DistanceX", 10, 3, -1, 1, Q("7.861508 mm")))
sketch5.addConstraint(Sketcher.Constraint("DistanceY", 10, 3, -1, 1, Q("5.147709 mm")))
sketch5.addConstraint(Sketcher.Constraint("DistanceX", -1, 1, 0, 1, Q("0.25688 mm")))
sketch5.addConstraint(Sketcher.Constraint("DistanceY", 5, 1, -1, 1, Q("9.554989 mm")))
sketch5.addConstraint(Sketcher.Constraint("DistanceY", 7, 1, -1, 1, Q("3.403969 mm")))
sketch5.addConstraint(Sketcher.Constraint("DistanceX", 6, 3, -1, 1, Q("3.334346 mm")))
pocket4 = body.newObject("PartDesign::Pocket", "Pocket003")
pocket4.Profile = sketch5
pocket4.Length = 8
pocket4.Reversed = True

sketch6 = body.newObject("Sketcher::SketchObject", "Sketch005")
sketch6.AttachmentSupport = (doc.getObject("YZ_Plane"), [""])
sketch6.MapMode = "FlatFace"
sketch6.AttachmentOffset = App.Placement(Vector(0, 0, 15), App.Rotation())
sketch6.addGeometry(Part.Circle(Vector(0, 0, 0), Vector(0, 0, 1), 5), False)
sketch6.addGeometry(Part.LineSegment(Vector(2.3, 1.2, 0), Vector(2.3, -1.2, 0)), False)
sketch6.addGeometry(Part.ArcOfCircle(Part.Circle(Vector(0, 0, 0), Vector(0, 0, 1), 2.6), math.radians(28), math.radians(332)), False)
sketch6.addConstraint(Sketcher.Constraint("Coincident", 1, 1, 2, 1))
sketch6.addConstraint(Sketcher.Constraint("Coincident", 2, 2, 1, 2))
sketch6.addConstraint(Sketcher.Constraint("Vertical", 1))
sketch6.addConstraint(Sketcher.Constraint("Coincident", 0, 3, -1, 1))
sketch6.addConstraint(Sketcher.Constraint("Coincident", 2, 3, -1, 1))
sketch6.addConstraint(Sketcher.Constraint("Diameter", 0, Q("10 mm")))
sketch6.addConstraint(Sketcher.Constraint("Radius", 2, Q("2.6 mm")))
sketch6.addConstraint(Sketcher.Constraint("DistanceX", -1, 1, 1, 1, Q("2.3 mm")))
pad1 = body.newObject("PartDesign::Pad", "Pad")
pad1.Profile = sketch6
pad1.Length = 8

doc.recompute()
